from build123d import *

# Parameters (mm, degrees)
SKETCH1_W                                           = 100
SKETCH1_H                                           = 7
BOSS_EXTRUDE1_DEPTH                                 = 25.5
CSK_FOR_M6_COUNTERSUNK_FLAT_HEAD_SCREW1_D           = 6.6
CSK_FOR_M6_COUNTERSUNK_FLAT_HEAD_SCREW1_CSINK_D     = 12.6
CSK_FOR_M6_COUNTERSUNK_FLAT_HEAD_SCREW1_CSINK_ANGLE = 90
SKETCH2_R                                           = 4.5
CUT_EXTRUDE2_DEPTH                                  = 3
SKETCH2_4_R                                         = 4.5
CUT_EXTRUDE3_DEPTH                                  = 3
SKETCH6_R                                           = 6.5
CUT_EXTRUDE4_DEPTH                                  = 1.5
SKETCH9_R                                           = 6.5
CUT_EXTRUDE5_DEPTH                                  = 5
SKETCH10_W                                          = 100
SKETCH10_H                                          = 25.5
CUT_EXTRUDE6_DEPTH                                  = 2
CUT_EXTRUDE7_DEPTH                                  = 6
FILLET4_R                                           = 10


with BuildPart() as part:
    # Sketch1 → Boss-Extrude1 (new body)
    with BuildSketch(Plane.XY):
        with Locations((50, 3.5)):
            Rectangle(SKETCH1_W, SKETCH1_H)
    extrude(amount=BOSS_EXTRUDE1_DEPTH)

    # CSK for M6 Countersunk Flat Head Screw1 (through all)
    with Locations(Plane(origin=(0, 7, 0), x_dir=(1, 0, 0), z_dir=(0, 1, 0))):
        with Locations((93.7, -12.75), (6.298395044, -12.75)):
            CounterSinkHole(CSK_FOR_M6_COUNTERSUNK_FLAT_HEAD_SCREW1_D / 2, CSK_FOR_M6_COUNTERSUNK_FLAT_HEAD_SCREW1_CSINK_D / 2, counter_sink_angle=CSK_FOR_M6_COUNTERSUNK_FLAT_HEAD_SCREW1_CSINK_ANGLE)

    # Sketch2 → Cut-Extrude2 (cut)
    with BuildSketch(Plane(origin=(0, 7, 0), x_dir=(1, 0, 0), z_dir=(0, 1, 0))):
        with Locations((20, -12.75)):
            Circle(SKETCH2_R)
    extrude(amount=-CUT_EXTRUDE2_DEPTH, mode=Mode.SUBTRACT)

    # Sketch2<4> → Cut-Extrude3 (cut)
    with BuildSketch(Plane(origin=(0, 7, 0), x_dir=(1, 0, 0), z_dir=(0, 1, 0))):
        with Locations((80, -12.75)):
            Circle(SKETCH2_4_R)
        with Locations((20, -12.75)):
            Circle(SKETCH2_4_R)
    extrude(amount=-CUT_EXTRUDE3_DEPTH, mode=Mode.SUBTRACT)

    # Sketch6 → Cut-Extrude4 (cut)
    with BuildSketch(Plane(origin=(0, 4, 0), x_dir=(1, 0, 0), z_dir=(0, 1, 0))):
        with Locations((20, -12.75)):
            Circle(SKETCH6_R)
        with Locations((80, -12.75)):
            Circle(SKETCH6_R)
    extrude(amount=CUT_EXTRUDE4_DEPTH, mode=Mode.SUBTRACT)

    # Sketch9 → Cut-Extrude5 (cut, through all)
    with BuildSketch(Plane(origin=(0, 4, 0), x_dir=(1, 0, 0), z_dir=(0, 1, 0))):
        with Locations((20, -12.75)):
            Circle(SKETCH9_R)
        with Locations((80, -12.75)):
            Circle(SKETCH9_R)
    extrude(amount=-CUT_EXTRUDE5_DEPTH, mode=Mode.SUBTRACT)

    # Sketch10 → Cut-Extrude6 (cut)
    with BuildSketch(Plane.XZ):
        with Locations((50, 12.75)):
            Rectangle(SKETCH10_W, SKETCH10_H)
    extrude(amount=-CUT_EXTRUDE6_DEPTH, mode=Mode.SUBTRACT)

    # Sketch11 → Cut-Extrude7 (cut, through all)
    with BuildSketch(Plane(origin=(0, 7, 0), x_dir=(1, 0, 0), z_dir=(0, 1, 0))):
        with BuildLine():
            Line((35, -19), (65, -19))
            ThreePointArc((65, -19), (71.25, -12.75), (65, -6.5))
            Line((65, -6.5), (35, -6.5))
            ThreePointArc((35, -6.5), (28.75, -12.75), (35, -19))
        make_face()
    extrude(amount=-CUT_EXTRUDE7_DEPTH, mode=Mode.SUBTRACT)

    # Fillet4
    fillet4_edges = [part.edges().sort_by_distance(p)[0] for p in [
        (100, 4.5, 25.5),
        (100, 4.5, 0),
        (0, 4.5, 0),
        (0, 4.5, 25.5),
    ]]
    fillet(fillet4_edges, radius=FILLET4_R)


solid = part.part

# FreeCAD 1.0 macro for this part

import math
import FreeCAD as App
import Part
import Sketcher


def edges_at(feature, points):
    """Names of the edges that pass closest to the given points."""
    edges = feature.Shape.Edges
    near = lambda p: min(range(len(edges)), key=lambda i: edges[i].distToShape(Part.Vertex(*p))[0])
    return sorted({f"Edge{near(p) + 1}" for p in points})

doc = App.newDocument("Part")
body = doc.addObject("PartDesign::Body", "Body")

sketch1 = doc.addObject("Sketcher::SketchObject", "Sketch")
body.addObject(sketch1)
sketch1.AttachmentSupport = (doc.XY_Plane, [""])
sketch1.MapMode = "FlatFace"
sketch1.addGeometry(Part.LineSegment(App.Vector(0, 7, 0), App.Vector(0, 0, 0)), False)
sketch1.addGeometry(Part.LineSegment(App.Vector(0, 0, 0), App.Vector(100, 0, 0)), False)
sketch1.addGeometry(Part.LineSegment(App.Vector(100, 0, 0), App.Vector(100, 7, 0)), False)
sketch1.addGeometry(Part.LineSegment(App.Vector(100, 7, 0), App.Vector(0, 7, 0)), False)
sketch1.addConstraint(Sketcher.Constraint("Coincident", 0, 2, 1, 1))
sketch1.addConstraint(Sketcher.Constraint("Coincident", 1, 2, 2, 1))
sketch1.addConstraint(Sketcher.Constraint("Coincident", 2, 2, 3, 1))
sketch1.addConstraint(Sketcher.Constraint("Coincident", 3, 2, 0, 1))
sketch1.addConstraint(Sketcher.Constraint("Vertical", 0))
sketch1.addConstraint(Sketcher.Constraint("Horizontal", 1))
sketch1.addConstraint(Sketcher.Constraint("Vertical", 2))
sketch1.addConstraint(Sketcher.Constraint("Horizontal", 3))
sketch1.addConstraint(Sketcher.Constraint("Coincident", 0, 2, -1, 1))
sketch1.addConstraint(Sketcher.Constraint("DistanceX", 1, 1, 1, 2, 100.0))
sketch1.addConstraint(Sketcher.Constraint("DistanceY", 0, 2, 0, 1, 7.0))
pad1 = doc.addObject("PartDesign::Pad", "Pad")
body.addObject(pad1)
pad1.Profile = sketch1
pad1.Length = 25.5

sketch2 = doc.addObject("Sketcher::SketchObject", "Sketch001")
body.addObject(sketch2)
sketch2.AttachmentSupport = (doc.XZ_Plane, [""])
sketch2.MapMode = "FlatFace"
sketch2.AttachmentOffset = App.Placement(App.Vector(0, 0, -7), App.Rotation())
sketch2.addGeometry(Part.Circle(App.Vector(93.7, 12.8, 0), App.Vector(0, 0, 1), 3.3), False)
sketch2.addGeometry(Part.Circle(App.Vector(6.3, 12.8, 0), App.Vector(0, 0, 1), 3.3), False)
sketch2.addConstraint(Sketcher.Constraint("Equal", 0, 1))
sketch2.addConstraint(Sketcher.Constraint("Horizontal", 0, 3, 1, 3))
sketch2.addConstraint(Sketcher.Constraint("Diameter", 0, 6.6))
sketch2.addConstraint(Sketcher.Constraint("DistanceX", -1, 1, 0, 3, 93.7))
sketch2.addConstraint(Sketcher.Constraint("DistanceY", -1, 1, 0, 3, 12.75))
sketch2.addConstraint(Sketcher.Constraint("DistanceX", -1, 1, 1, 3, 6.298395))
doc.recompute()
hole = doc.addObject("PartDesign::Hole", "Hole")
body.addObject(hole)
hole.Profile = sketch2
hole.ThreadType = "None"
hole.Diameter = 6.6
hole.DepthType = "ThroughAll"
hole.HoleCutType = "Countersink"
hole.HoleCutDiameter = 12.6
hole.HoleCutCountersinkAngle = 90
hole.Reversed = True

sketch3 = doc.addObject("Sketcher::SketchObject", "Sketch002")
body.addObject(sketch3)
sketch3.AttachmentSupport = (doc.XZ_Plane, [""])
sketch3.MapMode = "FlatFace"
sketch3.AttachmentOffset = App.Placement(App.Vector(0, 0, -7), App.Rotation())
sketch3.addGeometry(Part.Circle(App.Vector(20, 12.8, 0), App.Vector(0, 0, 1), 4.5), False)
sketch3.addConstraint(Sketcher.Constraint("Diameter", 0, 9.0))
sketch3.addConstraint(Sketcher.Constraint("DistanceX", -1, 1, 0, 3, 20.0))
sketch3.addConstraint(Sketcher.Constraint("DistanceY", -1, 1, 0, 3, 12.75))
pocket1 = doc.addObject("PartDesign::Pocket", "Pocket")
body.addObject(pocket1)
pocket1.Profile = sketch3
pocket1.Length = 3
pocket1.Reversed = True

sketch4 = doc.addObject("Sketcher::SketchObject", "Sketch003")
body.addObject(sketch4)
sketch4.AttachmentSupport = (doc.XZ_Plane, [""])
sketch4.MapMode = "FlatFace"
sketch4.AttachmentOffset = App.Placement(App.Vector(0, 0, -7), App.Rotation())
sketch4.addGeometry(Part.Circle(App.Vector(80, 12.8, 0), App.Vector(0, 0, 1), 4.5), False)
sketch4.addGeometry(Part.Circle(App.Vector(20, 12.8, 0), App.Vector(0, 0, 1), 4.5), False)
sketch4.addConstraint(Sketcher.Constraint("Equal", 0, 1))
sketch4.addConstraint(Sketcher.Constraint("Horizontal", 0, 3, 1, 3))
sketch4.addConstraint(Sketcher.Constraint("Diameter", 0, 9.0))
sketch4.addConstraint(Sketcher.Constraint("DistanceX", -1, 1, 0, 3, 80.0))
sketch4.addConstraint(Sketcher.Constraint("DistanceX", -1, 1, 1, 3, 20.0))
sketch4.addConstraint(Sketcher.Constraint("DistanceY", -1, 1, 0, 3, 12.75))
pocket2 = doc.addObject("PartDesign::Pocket", "Pocket001")
body.addObject(pocket2)
pocket2.Profile = sketch4
pocket2.Length = 3
pocket2.Reversed = True

sketch5 = doc.addObject("Sketcher::SketchObject", "Sketch004")
body.addObject(sketch5)
sketch5.AttachmentSupport = (doc.XZ_Plane, [""])
sketch5.MapMode = "FlatFace"
sketch5.AttachmentOffset = App.Placement(App.Vector(0, 0, -4), App.Rotation())
sketch5.addGeometry(Part.Circle(App.Vector(20, 13, 0), App.Vector(0, 0, 1), 6), False)
sketch5.addGeometry(Part.Circle(App.Vector(80, 13, 0), App.Vector(0, 0, 1), 6), False)
sketch5.addConstraint(Sketcher.Constraint("Equal", 0, 1))
sketch5.addConstraint(Sketcher.Constraint("Horizontal", 0, 3, 1, 3))
sketch5.addConstraint(Sketcher.Constraint("Diameter", 0, 13.0))
sketch5.addConstraint(Sketcher.Constraint("DistanceX", -1, 1, 0, 3, 20.0))
sketch5.addConstraint(Sketcher.Constraint("DistanceX", -1, 1, 1, 3, 80.0))
sketch5.addConstraint(Sketcher.Constraint("DistanceY", -1, 1, 0, 3, 12.75))
pocket3 = doc.addObject("PartDesign::Pocket", "Pocket002")
body.addObject(pocket3)
pocket3.Profile = sketch5
pocket3.Length = 1.5

sketch6 = doc.addObject("Sketcher::SketchObject", "Sketch005")
body.addObject(sketch6)
sketch6.AttachmentSupport = (doc.XZ_Plane, [""])
sketch6.MapMode = "FlatFace"
sketch6.AttachmentOffset = App.Placement(App.Vector(0, 0, -4), App.Rotation())
sketch6.addGeometry(Part.Circle(App.Vector(20, 13, 0), App.Vector(0, 0, 1), 6), False)
sketch6.addGeometry(Part.Circle(App.Vector(80, 13, 0), App.Vector(0, 0, 1), 6), False)
sketch6.addConstraint(Sketcher.Constraint("Equal", 0, 1))
sketch6.addConstraint(Sketcher.Constraint("Horizontal", 0, 3, 1, 3))
sketch6.addConstraint(Sketcher.Constraint("Diameter", 0, 13.0))
sketch6.addConstraint(Sketcher.Constraint("DistanceX", -1, 1, 0, 3, 20.0))
sketch6.addConstraint(Sketcher.Constraint("DistanceX", -1, 1, 1, 3, 80.0))
sketch6.addConstraint(Sketcher.Constraint("DistanceY", -1, 1, 0, 3, 12.75))
pocket4 = doc.addObject("PartDesign::Pocket", "Pocket003")
body.addObject(pocket4)
pocket4.Profile = sketch6
pocket4.Type = "ThroughAll"
pocket4.Reversed = True

sketch7 = doc.addObject("Sketcher::SketchObject", "Sketch006")
body.addObject(sketch7)
sketch7.AttachmentSupport = (doc.XZ_Plane, [""])
sketch7.MapMode = "FlatFace"
sketch7.addGeometry(Part.LineSegment(App.Vector(0, 26, 0), App.Vector(0, 0, 0)), False)
sketch7.addGeometry(Part.LineSegment(App.Vector(0, 0, 0), App.Vector(100, 0, 0)), False)
sketch7.addGeometry(Part.LineSegment(App.Vector(100, 0, 0), App.Vector(100, 26, 0)), False)
sketch7.addGeometry(Part.LineSegment(App.Vector(100, 26, 0), App.Vector(0, 26, 0)), False)
sketch7.addConstraint(Sketcher.Constraint("Coincident", 0, 2, 1, 1))
sketch7.addConstraint(Sketcher.Constraint("Coincident", 1, 2, 2, 1))
sketch7.addConstraint(Sketcher.Constraint("Coincident", 2, 2, 3, 1))
sketch7.addConstraint(Sketcher.Constraint("Coincident", 3, 2, 0, 1))
sketch7.addConstraint(Sketcher.Constraint("Vertical", 0))
sketch7.addConstraint(Sketcher.Constraint("Horizontal", 1))
sketch7.addConstraint(Sketcher.Constraint("Vertical", 2))
sketch7.addConstraint(Sketcher.Constraint("Horizontal", 3))
sketch7.addConstraint(Sketcher.Constraint("Coincident", 0, 2, -1, 1))
sketch7.addConstraint(Sketcher.Constraint("DistanceX", 1, 1, 1, 2, 100.0))
sketch7.addConstraint(Sketcher.Constraint("DistanceY", 0, 2, 0, 1, 25.5))
pocket5 = doc.addObject("PartDesign::Pocket", "Pocket004")
body.addObject(pocket5)
pocket5.Profile = sketch7
pocket5.Length = 2

sketch8 = doc.addObject("Sketcher::SketchObject", "Sketch007")
body.addObject(sketch8)
sketch8.AttachmentSupport = (doc.XZ_Plane, [""])
sketch8.MapMode = "FlatFace"
sketch8.AttachmentOffset = App.Placement(App.Vector(0, 0, -7), App.Rotation())
sketch8.addGeometry(Part.LineSegment(App.Vector(35, 19, 0), App.Vector(65, 19, 0)), False)
sketch8.addGeometry(Part.ArcOfCircle(Part.Circle(App.Vector(65, 13, 0), App.Vector(0, 0, 1), 6), math.radians(-90), math.radians(90)), False)
sketch8.addGeometry(Part.LineSegment(App.Vector(65, 6, 0), App.Vector(35, 6, 0)), False)
sketch8.addGeometry(Part.ArcOfCircle(Part.Circle(App.Vector(35, 13, 0), App.Vector(0, 0, 1), 6), math.radians(90), math.radians(270)), False)
sketch8.addConstraint(Sketcher.Constraint("Tangent", 0, 2, 1, 2))
sketch8.addConstraint(Sketcher.Constraint("Tangent", 1, 1, 2, 1))
sketch8.addConstraint(Sketcher.Constraint("Tangent", 2, 2, 3, 2))
sketch8.addConstraint(Sketcher.Constraint("Tangent", 3, 1, 0, 1))
sketch8.addConstraint(Sketcher.Constraint("Horizontal", 0))
sketch8.addConstraint(Sketcher.Constraint("Horizontal", 2))
sketch8.addConstraint(Sketcher.Constraint("DistanceX", 0, 1, 0, 2, 30.0))
sketch8.addConstraint(Sketcher.Constraint("Radius", 1, 6.25))
sketch8.addConstraint(Sketcher.Constraint("DistanceX", -1, 1, 1, 3, 65.0))
sketch8.addConstraint(Sketcher.Constraint("DistanceY", -1, 1, 0, 2, 19.0))
pocket6 = doc.addObject("PartDesign::Pocket", "Pocket005")
body.addObject(pocket6)
pocket6.Profile = sketch8
pocket6.Type = "ThroughAll"
pocket6.Reversed = True
doc.recompute()

fillet = doc.addObject("PartDesign::Fillet", "Fillet")
body.addObject(fillet)
fillet.Base = (pocket6, edges_at(pocket6, [
    (100, 4.5, 25.5),
    (100, 4.5, 0),
    (0, 4.5, 0),
    (0, 4.5, 25.5),
]))
fillet.Radius = 10

doc.recompute()
